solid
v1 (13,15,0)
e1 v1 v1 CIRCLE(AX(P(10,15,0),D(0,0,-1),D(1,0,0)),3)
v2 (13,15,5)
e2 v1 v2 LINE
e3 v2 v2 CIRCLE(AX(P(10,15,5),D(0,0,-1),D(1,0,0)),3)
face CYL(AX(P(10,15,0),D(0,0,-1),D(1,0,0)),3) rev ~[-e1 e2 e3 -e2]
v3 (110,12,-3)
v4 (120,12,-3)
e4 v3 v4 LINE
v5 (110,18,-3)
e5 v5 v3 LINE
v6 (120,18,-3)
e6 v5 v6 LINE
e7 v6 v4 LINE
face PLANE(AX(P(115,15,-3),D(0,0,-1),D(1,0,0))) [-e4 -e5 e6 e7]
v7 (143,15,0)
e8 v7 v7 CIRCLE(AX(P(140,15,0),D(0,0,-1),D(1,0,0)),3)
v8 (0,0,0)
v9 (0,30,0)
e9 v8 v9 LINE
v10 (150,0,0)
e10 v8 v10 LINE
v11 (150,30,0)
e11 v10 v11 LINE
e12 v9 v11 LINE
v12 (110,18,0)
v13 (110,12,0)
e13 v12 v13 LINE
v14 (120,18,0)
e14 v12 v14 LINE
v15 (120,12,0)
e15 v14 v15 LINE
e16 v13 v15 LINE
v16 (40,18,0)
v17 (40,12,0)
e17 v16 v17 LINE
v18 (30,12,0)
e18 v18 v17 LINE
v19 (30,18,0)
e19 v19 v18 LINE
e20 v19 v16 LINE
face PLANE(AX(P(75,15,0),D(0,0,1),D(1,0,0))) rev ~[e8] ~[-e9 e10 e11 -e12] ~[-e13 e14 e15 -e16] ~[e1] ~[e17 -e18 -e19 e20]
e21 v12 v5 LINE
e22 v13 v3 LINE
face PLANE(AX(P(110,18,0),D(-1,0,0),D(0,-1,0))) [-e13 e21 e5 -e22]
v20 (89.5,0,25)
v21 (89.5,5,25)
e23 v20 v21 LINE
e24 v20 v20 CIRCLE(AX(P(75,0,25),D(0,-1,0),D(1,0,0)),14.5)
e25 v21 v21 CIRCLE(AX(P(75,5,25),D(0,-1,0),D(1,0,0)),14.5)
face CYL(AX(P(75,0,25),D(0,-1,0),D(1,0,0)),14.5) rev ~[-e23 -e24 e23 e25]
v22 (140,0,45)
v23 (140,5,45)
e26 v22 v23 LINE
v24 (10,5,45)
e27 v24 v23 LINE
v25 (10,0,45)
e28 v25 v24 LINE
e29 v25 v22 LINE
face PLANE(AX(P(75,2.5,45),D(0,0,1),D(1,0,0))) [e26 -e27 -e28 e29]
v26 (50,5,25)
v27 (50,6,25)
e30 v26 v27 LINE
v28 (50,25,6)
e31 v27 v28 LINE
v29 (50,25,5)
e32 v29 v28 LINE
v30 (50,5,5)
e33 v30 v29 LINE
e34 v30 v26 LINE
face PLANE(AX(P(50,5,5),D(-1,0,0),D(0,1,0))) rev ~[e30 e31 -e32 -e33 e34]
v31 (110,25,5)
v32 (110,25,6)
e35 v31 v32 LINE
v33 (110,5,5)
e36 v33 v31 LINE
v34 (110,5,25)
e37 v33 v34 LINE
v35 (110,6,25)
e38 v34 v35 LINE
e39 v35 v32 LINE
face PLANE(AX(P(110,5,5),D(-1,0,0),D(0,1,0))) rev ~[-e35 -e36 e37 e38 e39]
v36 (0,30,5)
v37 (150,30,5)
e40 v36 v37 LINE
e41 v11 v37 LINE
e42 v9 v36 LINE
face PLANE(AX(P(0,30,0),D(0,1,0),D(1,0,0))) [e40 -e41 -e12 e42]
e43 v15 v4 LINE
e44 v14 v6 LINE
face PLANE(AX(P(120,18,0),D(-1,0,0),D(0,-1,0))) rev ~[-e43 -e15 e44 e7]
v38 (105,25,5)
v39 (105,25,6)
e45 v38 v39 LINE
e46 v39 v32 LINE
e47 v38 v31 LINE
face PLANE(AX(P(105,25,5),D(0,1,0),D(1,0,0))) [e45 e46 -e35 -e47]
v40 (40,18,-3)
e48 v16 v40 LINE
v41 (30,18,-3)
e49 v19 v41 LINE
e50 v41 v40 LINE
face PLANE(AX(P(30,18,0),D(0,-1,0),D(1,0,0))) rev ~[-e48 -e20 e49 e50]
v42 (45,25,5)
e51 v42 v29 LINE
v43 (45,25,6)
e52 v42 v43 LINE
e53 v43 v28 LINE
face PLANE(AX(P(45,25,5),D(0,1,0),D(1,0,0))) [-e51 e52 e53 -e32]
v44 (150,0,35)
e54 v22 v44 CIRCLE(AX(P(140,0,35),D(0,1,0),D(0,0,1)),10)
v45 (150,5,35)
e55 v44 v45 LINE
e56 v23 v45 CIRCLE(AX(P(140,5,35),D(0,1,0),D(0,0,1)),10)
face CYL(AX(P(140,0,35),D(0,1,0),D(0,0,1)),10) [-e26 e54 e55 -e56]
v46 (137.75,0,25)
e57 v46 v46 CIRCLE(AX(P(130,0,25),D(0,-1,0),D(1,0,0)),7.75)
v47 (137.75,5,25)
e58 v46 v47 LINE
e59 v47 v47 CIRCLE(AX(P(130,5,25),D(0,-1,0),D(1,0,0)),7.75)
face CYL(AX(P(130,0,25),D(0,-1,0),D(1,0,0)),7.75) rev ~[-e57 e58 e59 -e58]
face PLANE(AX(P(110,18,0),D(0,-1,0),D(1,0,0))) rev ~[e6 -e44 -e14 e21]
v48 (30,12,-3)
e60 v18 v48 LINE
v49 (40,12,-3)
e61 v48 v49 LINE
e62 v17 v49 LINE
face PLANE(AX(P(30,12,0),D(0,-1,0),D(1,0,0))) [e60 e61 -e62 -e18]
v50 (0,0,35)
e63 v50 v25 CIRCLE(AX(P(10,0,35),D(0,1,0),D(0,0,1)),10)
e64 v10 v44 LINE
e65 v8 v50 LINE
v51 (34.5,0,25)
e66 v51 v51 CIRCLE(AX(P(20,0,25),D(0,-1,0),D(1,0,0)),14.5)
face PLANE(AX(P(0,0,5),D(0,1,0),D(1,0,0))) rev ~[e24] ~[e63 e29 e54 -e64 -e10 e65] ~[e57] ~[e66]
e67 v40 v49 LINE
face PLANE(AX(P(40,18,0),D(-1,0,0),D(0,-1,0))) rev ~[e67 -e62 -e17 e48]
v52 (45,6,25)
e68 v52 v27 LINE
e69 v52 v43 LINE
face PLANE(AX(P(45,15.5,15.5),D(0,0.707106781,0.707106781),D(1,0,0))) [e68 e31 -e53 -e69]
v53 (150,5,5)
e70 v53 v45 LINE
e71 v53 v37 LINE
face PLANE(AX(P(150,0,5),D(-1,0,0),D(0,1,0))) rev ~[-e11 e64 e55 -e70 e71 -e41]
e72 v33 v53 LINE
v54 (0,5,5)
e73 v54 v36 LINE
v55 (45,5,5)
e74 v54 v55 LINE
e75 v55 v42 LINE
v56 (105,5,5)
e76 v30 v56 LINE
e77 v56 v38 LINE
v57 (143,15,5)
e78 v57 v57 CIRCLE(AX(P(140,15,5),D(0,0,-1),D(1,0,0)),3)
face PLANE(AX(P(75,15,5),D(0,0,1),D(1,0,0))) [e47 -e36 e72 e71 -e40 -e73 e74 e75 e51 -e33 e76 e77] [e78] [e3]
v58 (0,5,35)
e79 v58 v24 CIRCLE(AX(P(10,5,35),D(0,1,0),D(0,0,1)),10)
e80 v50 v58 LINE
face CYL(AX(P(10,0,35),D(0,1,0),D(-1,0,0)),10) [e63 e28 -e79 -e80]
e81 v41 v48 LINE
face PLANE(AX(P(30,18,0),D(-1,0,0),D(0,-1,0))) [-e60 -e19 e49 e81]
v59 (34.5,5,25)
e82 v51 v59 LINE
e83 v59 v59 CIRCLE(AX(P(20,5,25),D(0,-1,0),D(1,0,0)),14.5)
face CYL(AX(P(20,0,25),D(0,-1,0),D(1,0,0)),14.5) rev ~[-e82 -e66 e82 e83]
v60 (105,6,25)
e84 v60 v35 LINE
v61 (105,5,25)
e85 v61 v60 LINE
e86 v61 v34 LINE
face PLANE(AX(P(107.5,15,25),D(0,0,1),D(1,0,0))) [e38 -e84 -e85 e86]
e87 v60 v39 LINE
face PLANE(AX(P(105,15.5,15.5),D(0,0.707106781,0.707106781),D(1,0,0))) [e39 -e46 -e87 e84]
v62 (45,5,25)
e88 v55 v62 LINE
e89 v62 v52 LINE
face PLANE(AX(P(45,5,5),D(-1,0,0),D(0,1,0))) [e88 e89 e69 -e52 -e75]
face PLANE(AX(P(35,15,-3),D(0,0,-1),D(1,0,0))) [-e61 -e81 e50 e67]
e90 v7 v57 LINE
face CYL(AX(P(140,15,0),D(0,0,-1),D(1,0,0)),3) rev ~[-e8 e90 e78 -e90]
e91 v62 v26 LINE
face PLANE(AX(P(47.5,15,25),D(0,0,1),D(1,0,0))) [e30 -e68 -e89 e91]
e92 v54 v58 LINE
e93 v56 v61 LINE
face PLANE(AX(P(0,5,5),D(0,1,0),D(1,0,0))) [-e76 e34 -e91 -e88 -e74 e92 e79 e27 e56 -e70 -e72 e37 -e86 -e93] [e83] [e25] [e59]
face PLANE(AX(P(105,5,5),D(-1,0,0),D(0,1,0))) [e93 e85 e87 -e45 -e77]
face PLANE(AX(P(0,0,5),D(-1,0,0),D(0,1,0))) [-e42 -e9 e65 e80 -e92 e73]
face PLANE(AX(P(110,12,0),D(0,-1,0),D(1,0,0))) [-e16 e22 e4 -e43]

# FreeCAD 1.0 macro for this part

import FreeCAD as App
import Part
import Sketcher
from FreeCAD import Vector
Q = App.Units.Quantity


def edges_at(feature, points):
    """Names of the edges that pass closest to the given points."""
    edges = feature.Shape.Edges
    near = lambda p: min(range(len(edges)), key=lambda i: edges[i].distToShape(Part.Vertex(*p))[0])
    return sorted({f"Edge{near(p) + 1}" for p in points})


def add_polygon(sketch, points):
    """Adds a closed chain of lines whose ends are joined by coincident constraints."""
    first, n = sketch.GeometryCount, len(points)
    for a, b in zip(points, points[1:] + points[:1]):
        sketch.addGeometry(Part.LineSegment(App.Vector(*a, 0), App.Vector(*b, 0)), False)
    for i in range(n):
        sketch.addConstraint(Sketcher.Constraint("Coincident", first + i, 2, first + (i + 1) % n, 1))

doc = App.newDocument("Part")
body = doc.addObject("PartDesign::Body", "Body")

# Sketch on XY plane
sketch1 = body.newObject("Sketcher::SketchObject", "Sketch")
sketch1.AttachmentSupport = (doc.getObject("XY_Plane"), [""])
sketch1.MapMode = "FlatFace"
add_polygon(sketch1, [(0, 30), (0, 0), (150, 0), (150, 30)])  # lines 0-3
sketch1.addConstraint([
    Sketcher.Constraint("Vertical", 0),
    Sketcher.Constraint("Horizontal", 1),
    Sketcher.Constraint("Vertical", 2),
    Sketcher.Constraint("Horizontal", 3),
    Sketcher.Constraint("Coincident", 0, 2, -1, 1),
    Sketcher.Constraint("DistanceX", 1, 1, 1, 2, Q("150 mm")),
    Sketcher.Constraint("DistanceY", 0, 2, 0, 1, Q("30 mm")),
])
pad1 = body.newObject("PartDesign::Pad", "Pad")
pad1.Profile = sketch1
pad1.Length = 5

# Sketch on XY plane
sketch2 = body.newObject("Sketcher::SketchObject", "Sketch001")
sketch2.AttachmentSupport = (doc.getObject("XY_Plane"), [""])
sketch2.MapMode = "FlatFace"
sketch2.AttachmentOffset = App.Placement(Vector(0, 0, 5), App.Rotation())
add_polygon(sketch2, [(0, 5), (0, 0), (150, 0), (150, 5)])  # lines 0-3
sketch2.addConstraint([
    Sketcher.Constraint("Vertical", 0),
    Sketcher.Constraint("Horizontal", 1),
    Sketcher.Constraint("Vertical", 2),
    Sketcher.Constraint("Horizontal", 3),
    Sketcher.Constraint("Coincident", 0, 2, -1, 1),
    Sketcher.Constraint("DistanceX", 1, 1, 1, 2, Q("150 mm")),
    Sketcher.Constraint("DistanceY", 0, 2, 0, 1, Q("5 mm")),
])
pad2 = body.newObject("PartDesign::Pad", "Pad001")
pad2.Profile = sketch2
pad2.Length = 40

# Sketch on XZ plane
sketch3 = body.newObject("Sketcher::SketchObject", "Sketch002")
sketch3.AttachmentSupport = (doc.getObject("XZ_Plane"), [""])
sketch3.MapMode = "FlatFace"
sketch3.addGeometry([
    Part.Circle(Vector(20, 25, 0), Vector(0, 0, 1), 14),
    Part.Circle(Vector(75, 25, 0), Vector(0, 0, 1), 14),
    Part.Circle(Vector(130, 25, 0), Vector(0, 0, 1), 8),
], False)
sketch3.addConstraint([
    Sketcher.Constraint("Equal", 0, 1),
    Sketcher.Constraint("Horizontal", 0, 3, 1, 3),
    Sketcher.Constraint("Horizontal", 1, 3, 2, 3),
    Sketcher.Constraint("Diameter", 0, Q("29 mm")),
    Sketcher.Constraint("Diameter", 2, Q("15.5 mm")),
    Sketcher.Constraint("DistanceX", -1, 1, 0, 3, Q("20 mm")),
    Sketcher.Constraint("DistanceY", -1, 1, 0, 3, Q("25 mm")),
    Sketcher.Constraint("DistanceX", -1, 1, 1, 3, Q("75 mm")),
    Sketcher.Constraint("DistanceX", -1, 1, 2, 3, Q("130 mm")),
])
pocket1 = body.newObject("PartDesign::Pocket", "Pocket")
pocket1.Profile = sketch3
pocket1.Type = "ThroughAll"
doc.recompute()

fillet = body.newObject("PartDesign::Fillet", "Fillet")
fillet.Base = (pocket1, edges_at(pocket1, [(150, 2.5, 45), (0, 2.5, 45)]))
fillet.Radius = 10

# Sketch on XY plane
sketch4 = body.newObject("Sketcher::SketchObject", "Sketch003")
sketch4.AttachmentSupport = (doc.getObject("XY_Plane"), [""])
sketch4.MapMode = "FlatFace"
add_polygon(sketch4, [(30, 12), (30, 18), (40, 18), (40, 12)])  # lines 0-3
add_polygon(sketch4, [(110, 12), (110, 18), (120, 18), (120, 12)])  # lines 4-7
sketch4.addConstraint([
    Sketcher.Constraint("Vertical", 0),
    Sketcher.Constraint("Horizontal", 1),
    Sketcher.Constraint("Vertical", 2),
    Sketcher.Constraint("Horizontal", 3),
    Sketcher.Constraint("Vertical", 4),
    Sketcher.Constraint("Horizontal", 5),
    Sketcher.Constraint("Vertical", 6),
    Sketcher.Constraint("Horizontal", 7),
    Sketcher.Constraint("Horizontal", 1, 2, 4, 2),
    Sketcher.Constraint("Horizontal", 3, 2, 6, 2),
    Sketcher.Constraint("Equal", 3, 5),
    Sketcher.Constraint("DistanceX", 1, 1, 1, 2, Q("10 mm")),
    Sketcher.Constraint("DistanceY", 0, 1, 0, 2, Q("6 mm")),
    Sketcher.Constraint("DistanceX", -1, 1, 0, 2, Q("30 mm")),
    Sketcher.Constraint("DistanceY", -1, 1, 0, 2, Q("18 mm")),
    Sketcher.Constraint("DistanceX", -1, 1, 4, 2, Q("110 mm")),
])
pad3 = body.newObject("PartDesign::Pad", "Pad002")
pad3.Profile = sketch4
pad3.Length = 3
pad3.Reversed = True

# Sketch on XY plane
sketch5 = body.newObject("Sketcher::SketchObject", "Sketch004")
sketch5.AttachmentSupport = (doc.getObject("XY_Plane"), [""])
sketch5.MapMode = "FlatFace"
sketch5.AttachmentOffset = App.Placement(Vector(0, 0, 5), App.Rotation())
add_polygon(sketch5, [(45, 25), (45, 5), (50, 5), (50, 25)])  # lines 0-3
add_polygon(sketch5, [(105, 25), (105, 5), (110, 5), (110, 25)])  # lines 4-7
sketch5.addConstraint([
    Sketcher.Constraint("Vertical", 0),
    Sketcher.Constraint("Horizontal", 1),
    Sketcher.Constraint("Vertical", 2),
    Sketcher.Constraint("Horizontal", 3),
    Sketcher.Constraint("Vertical", 4),
    Sketcher.Constraint("Horizontal", 5),
    Sketcher.Constraint("Vertical", 6),
    Sketcher.Constraint("Horizontal", 7),
    Sketcher.Constraint("Horizontal", 1, 2, 4, 2),
    Sketcher.Constraint("Horizontal", 3, 2, 6, 2),
    Sketcher.Constraint("Equal", 3, 5),
    Sketcher.Constraint("DistanceX", 1, 1, 1, 2, Q("5 mm")),
    Sketcher.Constraint("DistanceY", 0, 2, 0, 1, Q("20 mm")),
    Sketcher.Constraint("DistanceX", -1, 1, 0, 2, Q("45 mm")),
    Sketcher.Constraint("DistanceY", -1, 1, 0, 2, Q("5 mm")),
    Sketcher.Constraint("DistanceX", -1, 1, 4, 2, Q("105 mm")),
])
pad4 = body.newObject("PartDesign::Pad", "Pad003")
pad4.Profile = sketch5
pad4.Length = 20
doc.recompute()

chamfer = body.newObject("PartDesign::Chamfer", "Chamfer")
chamfer.Base = (pad4, edges_at(pad4, [(107.5, 25, 25), (47.5, 25, 25)]))
chamfer.Size = 19

# Sketch on XY plane
sketch6 = body.newObject("Sketcher::SketchObject", "Sketch005")
sketch6.AttachmentSupport = (doc.getObject("XY_Plane"), [""])
sketch6.MapMode = "FlatFace"
sketch6.addGeometry([
    Part.Circle(Vector(10, 15, 0), Vector(0, 0, 1), 3),
    Part.Circle(Vector(140, 15, 0), Vector(0, 0, 1), 3),
], False)
sketch6.addConstraint([
    Sketcher.Constraint("Equal", 0, 1),
    Sketcher.Constraint("Horizontal", 0, 3, 1, 3),
    Sketcher.Constraint("Diameter", 0, Q("6 mm")),
    Sketcher.Constraint("DistanceX", -1, 1, 0, 3, Q("10 mm")),
    Sketcher.Constraint("DistanceY", -1, 1, 0, 3, Q("15 mm")),
    Sketcher.Constraint("DistanceX", -1, 1, 1, 3, Q("140 mm")),
])
pocket2 = body.newObject("PartDesign::Pocket", "Pocket001")
pocket2.Profile = sketch6
pocket2.Type = "ThroughAll"
pocket2.Reversed = True

doc.recompute()
